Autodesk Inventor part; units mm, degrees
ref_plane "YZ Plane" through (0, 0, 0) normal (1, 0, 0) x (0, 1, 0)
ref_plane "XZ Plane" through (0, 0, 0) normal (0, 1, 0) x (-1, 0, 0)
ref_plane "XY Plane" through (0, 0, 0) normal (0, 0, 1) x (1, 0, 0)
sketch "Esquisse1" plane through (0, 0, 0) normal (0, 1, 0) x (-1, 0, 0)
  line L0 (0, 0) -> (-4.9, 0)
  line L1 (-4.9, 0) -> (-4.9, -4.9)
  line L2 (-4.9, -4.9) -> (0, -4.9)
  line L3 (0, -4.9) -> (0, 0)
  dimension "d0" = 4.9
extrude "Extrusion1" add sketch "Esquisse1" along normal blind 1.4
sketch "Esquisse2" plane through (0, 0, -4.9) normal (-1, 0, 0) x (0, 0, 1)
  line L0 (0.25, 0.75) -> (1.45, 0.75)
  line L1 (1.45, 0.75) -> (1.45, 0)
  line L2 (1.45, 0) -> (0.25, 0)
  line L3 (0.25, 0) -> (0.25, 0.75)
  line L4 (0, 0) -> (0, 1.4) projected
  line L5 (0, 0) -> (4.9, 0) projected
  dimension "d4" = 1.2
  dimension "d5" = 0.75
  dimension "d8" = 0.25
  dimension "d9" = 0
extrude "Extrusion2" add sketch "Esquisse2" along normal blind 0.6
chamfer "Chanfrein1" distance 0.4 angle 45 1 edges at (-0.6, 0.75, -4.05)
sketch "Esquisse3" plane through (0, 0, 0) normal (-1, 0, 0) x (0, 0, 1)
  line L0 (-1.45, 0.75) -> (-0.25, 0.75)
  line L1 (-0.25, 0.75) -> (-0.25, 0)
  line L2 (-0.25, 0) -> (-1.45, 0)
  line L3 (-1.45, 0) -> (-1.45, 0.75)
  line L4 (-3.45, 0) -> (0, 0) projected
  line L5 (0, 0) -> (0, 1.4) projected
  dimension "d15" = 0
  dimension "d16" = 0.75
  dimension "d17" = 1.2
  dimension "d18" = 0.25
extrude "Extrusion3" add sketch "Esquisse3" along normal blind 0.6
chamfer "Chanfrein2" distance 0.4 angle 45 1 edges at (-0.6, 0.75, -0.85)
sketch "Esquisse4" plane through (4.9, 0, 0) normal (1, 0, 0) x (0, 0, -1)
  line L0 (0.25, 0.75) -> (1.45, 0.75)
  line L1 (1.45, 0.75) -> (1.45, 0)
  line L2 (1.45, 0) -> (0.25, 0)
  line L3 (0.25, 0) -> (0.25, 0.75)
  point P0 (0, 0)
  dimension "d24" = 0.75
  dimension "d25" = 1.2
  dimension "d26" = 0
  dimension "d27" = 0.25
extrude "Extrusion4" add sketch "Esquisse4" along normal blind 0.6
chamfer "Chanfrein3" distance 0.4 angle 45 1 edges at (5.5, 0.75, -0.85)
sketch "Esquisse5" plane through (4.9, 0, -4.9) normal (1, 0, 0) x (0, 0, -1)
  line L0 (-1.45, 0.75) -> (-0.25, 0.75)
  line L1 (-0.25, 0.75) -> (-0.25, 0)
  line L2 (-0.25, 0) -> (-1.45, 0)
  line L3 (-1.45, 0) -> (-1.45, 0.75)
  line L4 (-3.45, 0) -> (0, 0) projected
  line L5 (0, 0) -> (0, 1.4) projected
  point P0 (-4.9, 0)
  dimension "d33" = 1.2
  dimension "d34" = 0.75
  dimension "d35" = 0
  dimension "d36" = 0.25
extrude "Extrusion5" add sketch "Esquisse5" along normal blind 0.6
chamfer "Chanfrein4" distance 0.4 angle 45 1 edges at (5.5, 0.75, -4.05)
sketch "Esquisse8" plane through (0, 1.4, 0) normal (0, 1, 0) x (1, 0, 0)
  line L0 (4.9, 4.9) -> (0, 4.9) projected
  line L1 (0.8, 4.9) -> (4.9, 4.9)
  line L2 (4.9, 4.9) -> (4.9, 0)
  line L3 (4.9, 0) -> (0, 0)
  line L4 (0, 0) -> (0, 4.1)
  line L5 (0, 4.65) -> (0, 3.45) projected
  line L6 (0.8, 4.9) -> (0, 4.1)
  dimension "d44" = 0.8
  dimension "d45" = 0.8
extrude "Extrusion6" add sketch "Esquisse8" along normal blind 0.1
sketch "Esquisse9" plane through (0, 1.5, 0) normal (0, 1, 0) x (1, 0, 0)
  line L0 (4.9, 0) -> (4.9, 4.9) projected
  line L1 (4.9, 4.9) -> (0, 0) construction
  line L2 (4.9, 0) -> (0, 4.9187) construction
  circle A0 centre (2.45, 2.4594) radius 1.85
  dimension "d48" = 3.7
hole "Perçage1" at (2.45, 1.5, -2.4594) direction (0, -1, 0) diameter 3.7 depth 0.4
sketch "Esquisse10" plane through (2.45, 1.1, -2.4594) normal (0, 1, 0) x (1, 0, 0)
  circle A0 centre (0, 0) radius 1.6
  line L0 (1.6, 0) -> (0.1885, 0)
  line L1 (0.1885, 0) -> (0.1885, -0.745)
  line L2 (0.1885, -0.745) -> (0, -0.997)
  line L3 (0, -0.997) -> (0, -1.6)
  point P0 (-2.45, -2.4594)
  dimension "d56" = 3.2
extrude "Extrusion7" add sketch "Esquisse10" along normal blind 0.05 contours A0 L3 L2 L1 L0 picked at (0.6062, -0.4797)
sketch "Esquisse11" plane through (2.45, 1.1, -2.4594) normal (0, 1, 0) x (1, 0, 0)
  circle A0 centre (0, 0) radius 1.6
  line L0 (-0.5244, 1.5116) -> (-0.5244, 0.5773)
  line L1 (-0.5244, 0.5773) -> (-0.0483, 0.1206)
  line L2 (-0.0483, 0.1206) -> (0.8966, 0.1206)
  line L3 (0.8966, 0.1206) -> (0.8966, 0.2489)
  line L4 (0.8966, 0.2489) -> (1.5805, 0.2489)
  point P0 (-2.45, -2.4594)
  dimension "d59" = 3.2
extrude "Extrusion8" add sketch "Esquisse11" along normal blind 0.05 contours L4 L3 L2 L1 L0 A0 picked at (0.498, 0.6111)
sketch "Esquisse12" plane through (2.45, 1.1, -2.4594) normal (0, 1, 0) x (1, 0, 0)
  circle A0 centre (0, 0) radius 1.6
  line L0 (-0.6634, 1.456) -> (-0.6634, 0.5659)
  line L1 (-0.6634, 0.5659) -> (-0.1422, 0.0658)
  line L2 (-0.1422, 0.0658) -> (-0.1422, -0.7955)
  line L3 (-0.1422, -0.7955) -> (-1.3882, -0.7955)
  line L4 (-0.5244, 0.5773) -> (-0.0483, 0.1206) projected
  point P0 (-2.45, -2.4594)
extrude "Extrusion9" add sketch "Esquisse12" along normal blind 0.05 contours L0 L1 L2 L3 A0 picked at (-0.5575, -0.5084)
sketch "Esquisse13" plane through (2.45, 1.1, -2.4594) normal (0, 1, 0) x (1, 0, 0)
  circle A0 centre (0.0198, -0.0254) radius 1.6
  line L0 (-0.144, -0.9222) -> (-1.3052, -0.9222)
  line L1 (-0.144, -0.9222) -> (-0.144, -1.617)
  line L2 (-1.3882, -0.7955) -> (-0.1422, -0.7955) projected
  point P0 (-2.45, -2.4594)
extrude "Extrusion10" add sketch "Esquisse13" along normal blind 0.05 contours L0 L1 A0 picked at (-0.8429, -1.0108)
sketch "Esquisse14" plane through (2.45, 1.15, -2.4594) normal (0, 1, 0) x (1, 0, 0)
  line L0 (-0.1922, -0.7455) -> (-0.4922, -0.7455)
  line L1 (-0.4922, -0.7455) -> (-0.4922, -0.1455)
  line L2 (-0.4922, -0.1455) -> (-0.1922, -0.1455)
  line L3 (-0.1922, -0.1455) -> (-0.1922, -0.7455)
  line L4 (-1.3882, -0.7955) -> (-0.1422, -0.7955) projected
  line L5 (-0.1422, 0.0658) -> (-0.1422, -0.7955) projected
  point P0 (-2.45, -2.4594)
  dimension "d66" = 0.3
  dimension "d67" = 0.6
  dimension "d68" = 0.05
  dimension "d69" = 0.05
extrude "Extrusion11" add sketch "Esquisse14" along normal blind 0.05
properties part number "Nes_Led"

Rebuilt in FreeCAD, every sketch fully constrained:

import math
import FreeCAD as App
import Part
import Sketcher

V = App.Vector
Q = App.Units.Quantity


def edges_at(feature, points):
    """Names of the edges that pass closest to the given points."""
    edges = feature.Shape.Edges
    near = lambda p: min(range(len(edges)), key=lambda i: edges[i].distToShape(Part.Vertex(*p))[0])
    return sorted({f"Edge{near(p) + 1}" for p in points})


def add_polygon(sketch, points):
    """Adds a closed chain of lines whose ends are joined by coincident constraints."""
    first, n = sketch.GeometryCount, len(points)
    for a, b in zip(points, points[1:] + points[:1]):
        sketch.addGeometry(Part.LineSegment(App.Vector(*a, 0), App.Vector(*b, 0)), False)
    for i in range(n):
        sketch.addConstraint(Sketcher.Constraint("Coincident", first + i, 2, first + (i + 1) % n, 1))

doc = App.newDocument("Part")
params = doc.addObject("Spreadsheet::Sheet", "Params")
for row, (alias, value) in enumerate([
    ("sketch1_width", "4.9 mm"),
    ("pad1_length", "1.4 mm"),
    ("sketch2_height", "1.2 mm"),
    ("sketch2_width", "0.75 mm"),
    ("pad2_length", "0.6 mm"),
    ("chamfer_size", "0.4 mm"),
    ("sketch3_height", "1.2 mm"),
    ("sketch3_width", "0.75 mm"),
    ("pad3_length", "0.6 mm"),
    ("chamfer2_size", "0.4 mm"),
    ("sketch4_height", "1.2 mm"),
    ("sketch4_width", "0.75 mm"),
    ("pad4_length", "0.6 mm"),
    ("chamfer3_size", "0.4 mm"),
    ("sketch5_height", "1.2 mm"),
    ("sketch5_width", "0.75 mm"),
    ("pad5_length", "0.6 mm"),
    ("chamfer4_size", "0.4 mm"),
    ("sketch6_width", "4.1 mm"),
    ("pad6_length", "0.1 mm"),
    ("sketch7_diameter", "3.7 mm"),
    ("hole_diameter", "3.7 mm"),
    ("hole_depth", "0.4 mm"),
    ("sketch8_radius", "1.6 mm"),
    ("pad7_length", "0.05 mm"),
    ("sketch9_radius", "1.6 mm"),
    ("pad8_length", "0.05 mm"),
    ("sketch10_radius", "1.6 mm"),
    ("sketch10_height", "0.89 mm"),
    ("pad9_length", "0.05 mm"),
    ("sketch11_radius", "1.6 mm"),
    ("pad10_length", "0.05 mm"),
    ("sketch12_width", "0.3 mm"),
    ("sketch12_height", "0.6 mm"),
    ("pad11_length", "0.05 mm"),
], start=1):
    params.set(f"A{row}", alias)
    params.set(f"B{row}", "=" + value)
    params.setAlias(f"B{row}", alias)

body = doc.addObject("PartDesign::Body", "Body")

sketch1 = body.newObject("Sketcher::SketchObject", "Sketch")
sketch1.AttachmentSupport = (doc.getObject("XZ_Plane"), [""])
sketch1.MapMode = "FlatFace"
add_polygon(sketch1, [(0, -4.9), (0, 0), (4.9, 0), (4.9, -4.9)])
sketch1.addConstraint(Sketcher.Constraint("Vertical", 0))
sketch1.addConstraint(Sketcher.Constraint("Horizontal", 1))
sketch1.addConstraint(Sketcher.Constraint("Vertical", 2))
sketch1.addConstraint(Sketcher.Constraint("Horizontal", 3))
sketch1.addConstraint(Sketcher.Constraint("Coincident", 0, 2, -1, 1))
sketch1.addConstraint(Sketcher.Constraint("Equal", 3, 0))
sketch1.addConstraint(Sketcher.Constraint("DistanceX", 1, 1, 1, 2, Q("4.9 mm")))
sketch1.setExpression("Constraints[10]", "Params.sketch1_width")
pad1 = body.newObject("PartDesign::Pad", "Pad")
pad1.Profile = sketch1
pad1.setExpression("Length", "Params.pad1_length")
pad1.Reversed = True

sketch2 = body.newObject("Sketcher::SketchObject", "Sketch001")
sketch2.AttachmentSupport = (doc.getObject("YZ_Plane"), [""])
sketch2.MapMode = "FlatFace"
add_polygon(sketch2, [(0.8, -3.5), (0.8, -4.7), (0, -4.7), (0, -3.5)])
sketch2.addConstraint(Sketcher.Constraint("Vertical", 0))
sketch2.addConstraint(Sketcher.Constraint("Horizontal", 1))
sketch2.addConstraint(Sketcher.Constraint("Vertical", 2))
sketch2.addConstraint(Sketcher.Constraint("Horizontal", 3))
sketch2.addConstraint(Sketcher.Constraint("PointOnObject", 1, 2, -2))
sketch2.addConstraint(Sketcher.Constraint("DistanceY", 0, 2, 0, 1, Q("1.2 mm")))
sketch2.addConstraint(Sketcher.Constraint("DistanceX", 1, 2, 1, 1, Q("0.75 mm")))
sketch2.addConstraint(Sketcher.Constraint("DistanceY", 0, 2, -1, 1, Q("4.65 mm")))
sketch2.setExpression("Constraints[9]", "Params.sketch2_height")
sketch2.setExpression("Constraints[10]", "Params.sketch2_width")
pad2 = body.newObject("PartDesign::Pad", "Pad001")
pad2.Profile = sketch2
pad2.setExpression("Length", "Params.pad2_length")
pad2.Reversed = True
doc.recompute()

chamfer = body.newObject("PartDesign::Chamfer", "Chamfer")
chamfer.Base = (pad2, edges_at(pad2, [(-0.6, 0.75, -4.05)]))
chamfer.setExpression("Size", "Params.chamfer_size")

sketch3 = body.newObject("Sketcher::SketchObject", "Sketch002")
sketch3.AttachmentSupport = (doc.getObject("YZ_Plane"), [""])
sketch3.MapMode = "FlatFace"
add_polygon(sketch3, [(0.8, -0.2), (0.8, -1.4), (0, -1.4), (0, -0.2)])
sketch3.addConstraint(Sketcher.Constraint("Vertical", 0))
sketch3.addConstraint(Sketcher.Constraint("Horizontal", 1))
sketch3.addConstraint(Sketcher.Constraint("Vertical", 2))
sketch3.addConstraint(Sketcher.Constraint("Horizontal", 3))
sketch3.addConstraint(Sketcher.Constraint("PointOnObject", 1, 2, -2))
sketch3.addConstraint(Sketcher.Constraint("DistanceY", 0, 2, 0, 1, Q("1.2 mm")))
sketch3.addConstraint(Sketcher.Constraint("DistanceX", 1, 2, 1, 1, Q("0.75 mm")))
sketch3.addConstraint(Sketcher.Constraint("DistanceY", 2, 2, -1, 1, Q("0.25 mm")))
sketch3.setExpression("Constraints[9]", "Params.sketch3_height")
sketch3.setExpression("Constraints[10]", "Params.sketch3_width")
pad3 = body.newObject("PartDesign::Pad", "Pad002")
pad3.Profile = sketch3
pad3.setExpression("Length", "Params.pad3_length")
pad3.Reversed = True
doc.recompute()

chamfer2 = body.newObject("PartDesign::Chamfer", "Chamfer001")
chamfer2.Base = (pad3, edges_at(pad3, [(-0.6, 0.75, -0.85)]))
chamfer2.setExpression("Size", "Params.chamfer2_size")

sketch4 = body.newObject("Sketcher::SketchObject", "Sketch003")
sketch4.AttachmentSupport = (doc.getObject("YZ_Plane"), [""])
sketch4.MapMode = "FlatFace"
sketch4.AttachmentOffset = App.Placement(V(0, 0, 4.9), App.Rotation())
add_polygon(sketch4, [(0.8, -1.4), (0.8, -0.2), (0, -0.2), (0, -1.4)])
sketch4.addConstraint(Sketcher.Constraint("Vertical", 0))
sketch4.addConstraint(Sketcher.Constraint("Horizontal", 1))
sketch4.addConstraint(Sketcher.Constraint("Vertical", 2))
sketch4.addConstraint(Sketcher.Constraint("Horizontal", 3))
sketch4.addConstraint(Sketcher.Constraint("PointOnObject", 1, 2, -2))
sketch4.addConstraint(Sketcher.Constraint("DistanceY", 0, 1, 0, 2, Q("1.2 mm")))
sketch4.addConstraint(Sketcher.Constraint("DistanceX", 1, 2, 1, 1, Q("0.75 mm")))
sketch4.addConstraint(Sketcher.Constraint("DistanceY", 0, 2, -1, 1, Q("0.25 mm")))
sketch4.setExpression("Constraints[9]", "Params.sketch4_height")
sketch4.setExpression("Constraints[10]", "Params.sketch4_width")
pad4 = body.newObject("PartDesign::Pad", "Pad003")
pad4.Profile = sketch4
pad4.setExpression("Length", "Params.pad4_length")
doc.recompute()

chamfer3 = body.newObject("PartDesign::Chamfer", "Chamfer002")
chamfer3.Base = (pad4, edges_at(pad4, [(5.5, 0.75, -0.85)]))
chamfer3.setExpression("Size", "Params.chamfer3_size")

sketch5 = body.newObject("Sketcher::SketchObject", "Sketch004")
sketch5.AttachmentSupport = (doc.getObject("YZ_Plane"), [""])
sketch5.MapMode = "FlatFace"
sketch5.AttachmentOffset = App.Placement(V(0, 0, 4.9), App.Rotation())
add_polygon(sketch5, [(0.8, -4.7), (0.8, -3.5), (0, -3.5), (0, -4.7)])
sketch5.addConstraint(Sketcher.Constraint("Vertical", 0))
sketch5.addConstraint(Sketcher.Constraint("Horizontal", 1))
sketch5.addConstraint(Sketcher.Constraint("Vertical", 2))
sketch5.addConstraint(Sketcher.Constraint("Horizontal", 3))
sketch5.addConstraint(Sketcher.Constraint("PointOnObject", 1, 2, -2))
sketch5.addConstraint(Sketcher.Constraint("DistanceY", 0, 1, 0, 2, Q("1.2 mm")))
sketch5.addConstraint(Sketcher.Constraint("DistanceX", 1, 2, 1, 1, Q("0.75 mm")))
sketch5.addConstraint(Sketcher.Constraint("DistanceY", 0, 2, -1, 1, Q("3.45 mm")))
sketch5.setExpression("Constraints[9]", "Params.sketch5_height")
sketch5.setExpression("Constraints[10]", "Params.sketch5_width")
pad5 = body.newObject("PartDesign::Pad", "Pad004")
pad5.Profile = sketch5
pad5.setExpression("Length", "Params.pad5_length")
doc.recompute()

chamfer4 = body.newObject("PartDesign::Chamfer", "Chamfer003")
chamfer4.Base = (pad5, edges_at(pad5, [(5.5, 0.75, -4.05)]))
chamfer4.setExpression("Size", "Params.chamfer4_size")

sketch6 = body.newObject("Sketcher::SketchObject", "Sketch005")
sketch6.AttachmentSupport = (doc.getObject("XZ_Plane"), [""])
sketch6.MapMode = "FlatFace"
sketch6.AttachmentOffset = App.Placement(V(0, 0, -1.4), App.Rotation())
add_polygon(sketch6, [(4.9, 0), (4.9, -4.9), (0.8, -4.9), (0, -4.1), (0, 0)])
sketch6.addConstraint(Sketcher.Constraint("Vertical", 0))
sketch6.addConstraint(Sketcher.Constraint("Horizontal", 1))
sketch6.addConstraint(Sketcher.Constraint("Vertical", 3))
sketch6.addConstraint(Sketcher.Constraint("Horizontal", 4))
sketch6.addConstraint(Sketcher.Constraint("Coincident", 3, 2, -1, 1))
sketch6.addConstraint(Sketcher.Constraint("Equal", 4, 0))
sketch6.addConstraint(Sketcher.Constraint("Equal", 1, 3))
sketch6.addConstraint(Sketcher.Constraint("DistanceX", -1, 1, 1, 2, Q("0.8 mm")))
sketch6.addConstraint(Sketcher.Constraint("DistanceX", 1, 2, 1, 1, Q("4.1 mm")))
sketch6.setExpression("Constraints[13]", "Params.sketch6_width")
pad6 = body.newObject("PartDesign::Pad", "Pad005")
pad6.Profile = sketch6
pad6.setExpression("Length", "Params.pad6_length")
pad6.Reversed = True

sketch7 = body.newObject("Sketcher::SketchObject", "Sketch006")
sketch7.AttachmentSupport = (doc.getObject("XZ_Plane"), [""])
sketch7.MapMode = "FlatFace"
sketch7.AttachmentOffset = App.Placement(V(0, 0, -1.5), App.Rotation())
sketch7.addGeometry(Part.Circle(V(2.5, -2.5, 0), V(0, 0, 1), 1.9), False)
sketch7.addConstraint(Sketcher.Constraint("Diameter", 0, Q("3.7 mm")))
sketch7.addConstraint(Sketcher.Constraint("DistanceX", -1, 1, 0, 3, Q("2.45 mm")))
sketch7.addConstraint(Sketcher.Constraint("DistanceY", 0, 3, -1, 1, Q("2.4594 mm")))
sketch7.setExpression("Constraints[0]", "Params.sketch7_diameter")
doc.recompute()
hole = body.newObject("PartDesign::Hole", "Hole")
hole.Profile = sketch7
hole.ThreadType = "None"
hole.setExpression("Diameter", "Params.hole_diameter")
hole.DepthType = "Dimension"
hole.setExpression("Depth", "Params.hole_depth")
hole.DrillPoint = "Flat"
hole.Reversed = True

sketch8 = body.newObject("Sketcher::SketchObject", "Sketch007")
sketch8.AttachmentSupport = (doc.getObject("XZ_Plane"), [""])
sketch8.MapMode = "FlatFace"
sketch8.AttachmentOffset = App.Placement(V(0, 0, -1.1), App.Rotation())
sketch8.addGeometry(Part.ArcOfCircle(Part.Circle(V(2.45, -2.46, 0), V(0, 0, 1), 1.6), math.radians(0), math.radians(90)), False)
sketch8.addGeometry(Part.LineSegment(V(4.05, -2.46, 0), V(2.64, -2.46, 0)), False)
sketch8.addGeometry(Part.LineSegment(V(2.64, -2.46, 0), V(2.64, -1.71, 0)), False)
sketch8.addGeometry(Part.LineSegment(V(2.64, -1.71, 0), V(2.45, -1.46, 0)), False)
sketch8.addGeometry(Part.LineSegment(V(2.45, -1.46, 0), V(2.45, -0.86, 0)), False)
sketch8.addConstraint(Sketcher.Constraint("Coincident", 0, 1, 1, 1))
sketch8.addConstraint(Sketcher.Constraint("Coincident", 1, 2, 2, 1))
sketch8.addConstraint(Sketcher.Constraint("Coincident", 2, 2, 3, 1))
sketch8.addConstraint(Sketcher.Constraint("Coincident", 3, 2, 4, 1))
sketch8.addConstraint(Sketcher.Constraint("Coincident", 4, 2, 0, 2))
sketch8.addConstraint(Sketcher.Constraint("Horizontal", 1))
sketch8.addConstraint(Sketcher.Constraint("Vertical", 2))
sketch8.addConstraint(Sketcher.Constraint("Vertical", 4))
sketch8.addConstraint(Sketcher.Constraint("Vertical", 0, 3, 3, 2))
sketch8.addConstraint(Sketcher.Constraint("Radius", 0, Q("1.6 mm")))
sketch8.addConstraint(Sketcher.Constraint("DistanceY", 1, 2, 4, 2, Q("1.6 mm")))
sketch8.addConstraint(Sketcher.Constraint("DistanceY", 2, 1, 2, 2, Q("0.745 mm")))
sketch8.addConstraint(Sketcher.Constraint("DistanceY", 4, 1, 4, 2, Q("0.603 mm")))
sketch8.addConstraint(Sketcher.Constraint("DistanceX", -1, 1, 0, 3, Q("2.45 mm")))
sketch8.addConstraint(Sketcher.Constraint("DistanceX", 1, 2, 1, 1, Q("1.4115 mm")))
sketch8.addConstraint(Sketcher.Constraint("DistanceY", 0, 3, -1, 1, Q("2.4594 mm")))
sketch8.setExpression("Constraints[9]", "Params.sketch8_radius")
pad7 = body.newObject("PartDesign::Pad", "Pad006")
pad7.Profile = sketch8
pad7.setExpression("Length", "Params.pad7_length")
pad7.Reversed = True

sketch9 = body.newObject("Sketcher::SketchObject", "Sketch008")
sketch9.AttachmentSupport = (doc.getObject("XZ_Plane"), [""])
sketch9.MapMode = "FlatFace"
sketch9.AttachmentOffset = App.Placement(V(0, 0, -1.1), App.Rotation())
sketch9.addGeometry(Part.LineSegment(V(3.35, -2.71, 0), V(4.03, -2.71, 0)), False)
sketch9.addGeometry(Part.ArcOfCircle(Part.Circle(V(2.45, -2.46, 0), V(0, 0, 1), 1.6), math.radians(-109), math.radians(-9)), False)
sketch9.addGeometry(Part.LineSegment(V(1.93, -3.97, 0), V(1.93, -3.04, 0)), False)
sketch9.addGeometry(Part.LineSegment(V(1.93, -3.04, 0), V(2.4, -2.58, 0)), False)
sketch9.addGeometry(Part.LineSegment(V(2.4, -2.58, 0), V(3.35, -2.58, 0)), False)
sketch9.addGeometry(Part.LineSegment(V(3.35, -2.58, 0), V(3.35, -2.71, 0)), False)
sketch9.addConstraint(Sketcher.Constraint("Coincident", 0, 2, 1, 2))
sketch9.addConstraint(Sketcher.Constraint("Coincident", 1, 1, 2, 1))
sketch9.addConstraint(Sketcher.Constraint("Coincident", 2, 2, 3, 1))
sketch9.addConstraint(Sketcher.Constraint("Coincident", 3, 2, 4, 1))
sketch9.addConstraint(Sketcher.Constraint("Coincident", 4, 2, 5, 1))
sketch9.addConstraint(Sketcher.Constraint("Coincident", 5, 2, 0, 1))
sketch9.addConstraint(Sketcher.Constraint("Horizontal", 0))
sketch9.addConstraint(Sketcher.Constraint("Vertical", 2))
sketch9.addConstraint(Sketcher.Constraint("Horizontal", 4))
sketch9.addConstraint(Sketcher.Constraint("Vertical", 5))
sketch9.addConstraint(Sketcher.Constraint("Radius", 1, Q("1.6 mm")))
sketch9.addConstraint(Sketcher.Constraint("DistanceX", 0, 1, 0, 2, Q("0.684 mm")))
sketch9.addConstraint(Sketcher.Constraint("DistanceX", 4, 1, 4, 2, Q("0.945 mm")))
sketch9.addConstraint(Sketcher.Constraint("DistanceX", -1, 1, 1, 3, Q("2.45 mm")))
sketch9.addConstraint(Sketcher.Constraint("DistanceY", 3, 2, -1, 1, Q("2.58 mm")))
sketch9.addConstraint(Sketcher.Constraint("DistanceY", 2, 1, 2, 2, Q("0.9343 mm")))
sketch9.addConstraint(Sketcher.Constraint("DistanceY", 5, 2, 5, 1, Q("0.1283 mm")))
sketch9.addConstraint(Sketcher.Constraint("DistanceY", 1, 1, -1, 1, Q("3.971 mm")))
sketch9.addConstraint(Sketcher.Constraint("DistanceY", 0, 2, 1, 3, Q("0.249 mm")))
sketch9.setExpression("Constraints[10]", "Params.sketch9_radius")
pad8 = body.newObject("PartDesign::Pad", "Pad007")
pad8.Profile = sketch9
pad8.setExpression("Length", "Params.pad8_length")
pad8.Reversed = True

sketch10 = body.newObject("Sketcher::SketchObject", "Sketch009")
sketch10.AttachmentSupport = (doc.getObject("XZ_Plane"), [""])
sketch10.MapMode = "FlatFace"
sketch10.AttachmentOffset = App.Placement(V(0, 0, -1.1), App.Rotation())
sketch10.addGeometry(Part.LineSegment(V(1.8, -3, 0), V(1.8, -3.9, 0)), False)
sketch10.addGeometry(Part.ArcOfCircle(Part.Circle(V(2.5, -2.5, 0), V(0, 0, 1), 1.6), math.radians(150), math.radians(246)), False)
sketch10.addGeometry(Part.LineSegment(V(1.1, -1.7, 0), V(2.3, -1.7, 0)), False)
sketch10.addGeometry(Part.LineSegment(V(2.3, -1.7, 0), V(2.3, -2.5, 0)), False)
sketch10.addGeometry(Part.LineSegment(V(2.3, -2.5, 0), V(1.8, -3, 0)), False)
sketch10.addConstraint(Sketcher.Constraint("Coincident", 0, 2, 1, 2))
sketch10.addConstraint(Sketcher.Constraint("Coincident", 1, 1, 2, 1))
sketch10.addConstraint(Sketcher.Constraint("Coincident", 2, 2, 3, 1))
sketch10.addConstraint(Sketcher.Constraint("Coincident", 3, 2, 4, 1))
sketch10.addConstraint(Sketcher.Constraint("Coincident", 4, 2, 0, 1))
sketch10.addConstraint(Sketcher.Constraint("Vertical", 0))
sketch10.addConstraint(Sketcher.Constraint("Horizontal", 2))
sketch10.addConstraint(Sketcher.Constraint("Vertical", 3))
sketch10.addConstraint(Sketcher.Constraint("Radius", 1, Q("1.6 mm")))
sketch10.addConstraint(Sketcher.Constraint("DistanceY", 0, 2, 0, 1, Q("0.89 mm")))
sketch10.addConstraint(Sketcher.Constraint("DistanceY", 4, 2, 3, 2, Q("0.5 mm")))
sketch10.addConstraint(Sketcher.Constraint("DistanceX", 2, 1, 2, 2, Q("1.246 mm")))
sketch10.addConstraint(Sketcher.Constraint("DistanceX", -1, 1, 1, 3, Q("2.45 mm")))
sketch10.addConstraint(Sketcher.Constraint("DistanceY", 3, 2, 3, 1, Q("0.8613 mm")))
sketch10.addConstraint(Sketcher.Constraint("DistanceY", 1, 1, -1, 1, Q("1.664 mm")))
sketch10.addConstraint(Sketcher.Constraint("DistanceY", 0, 2, 1, 3, Q("1.456 mm")))
sketch10.setExpression("Constraints[8]", "Params.sketch10_radius")
sketch10.setExpression("Constraints[9]", "Params.sketch10_height")
pad9 = body.newObject("PartDesign::Pad", "Pad008")
pad9.Profile = sketch10
pad9.setExpression("Length", "Params.pad9_length")
pad9.Reversed = True

sketch11 = body.newObject("Sketcher::SketchObject", "Sketch010")
sketch11.AttachmentSupport = (doc.getObject("XZ_Plane"), [""])
sketch11.MapMode = "FlatFace"
sketch11.AttachmentOffset = App.Placement(V(0, 0, -1.1), App.Rotation())
sketch11.addGeometry(Part.LineSegment(V(2.3, -1.5, 0), V(1.1, -1.5, 0)), False)
sketch11.addGeometry(Part.ArcOfCircle(Part.Circle(V(2.5, -2.4, 0), V(0, 0, 1), 1.6), math.radians(96), math.radians(146)), False)
sketch11.addGeometry(Part.LineSegment(V(2.3, -0.8, 0), V(2.3, -1.5, 0)), False)
sketch11.addConstraint(Sketcher.Constraint("Coincident", 0, 2, 1, 2))
sketch11.addConstraint(Sketcher.Constraint("Coincident", 1, 1, 2, 1))
sketch11.addConstraint(Sketcher.Constraint("Coincident", 2, 2, 0, 1))
sketch11.addConstraint(Sketcher.Constraint("Horizontal", 0))
sketch11.addConstraint(Sketcher.Constraint("Vertical", 2))
sketch11.addConstraint(Sketcher.Constraint("Radius", 1, Q("1.6 mm")))
sketch11.addConstraint(Sketcher.Constraint("DistanceX", 0, 2, 0, 1, Q("1.1612 mm")))
sketch11.addConstraint(Sketcher.Constraint("DistanceY", 2, 2, 2, 1, Q("0.6948 mm")))
sketch11.addConstraint(Sketcher.Constraint("DistanceY", 1, 3, -1, 1, Q("2.434 mm")))
sketch11.addConstraint(Sketcher.Constraint("DistanceX", -1, 1, 1, 1, Q("2.306 mm")))
sketch11.setExpression("Constraints[5]", "Params.sketch11_radius")
pad10 = body.newObject("PartDesign::Pad", "Pad009")
pad10.Profile = sketch11
pad10.setExpression("Length", "Params.pad10_length")
pad10.Reversed = True

sketch12 = body.newObject("Sketcher::SketchObject", "Sketch011")
sketch12.AttachmentSupport = (doc.getObject("XZ_Plane"), [""])
sketch12.MapMode = "FlatFace"
sketch12.AttachmentOffset = App.Placement(V(0, 0, -1.15), App.Rotation())
add_polygon(sketch12, [(1.96, -1.71), (2.26, -1.71), (2.26, -2.31), (1.96, -2.31)])
sketch12.addConstraint(Sketcher.Constraint("Horizontal", 0))
sketch12.addConstraint(Sketcher.Constraint("Vertical", 1))
sketch12.addConstraint(Sketcher.Constraint("Horizontal", 2))
sketch12.addConstraint(Sketcher.Constraint("Vertical", 3))
sketch12.addConstraint(Sketcher.Constraint("DistanceX", 0, 1, 0, 2, Q("0.3 mm")))
sketch12.addConstraint(Sketcher.Constraint("DistanceY", 1, 2, 1, 1, Q("0.6 mm")))
sketch12.addConstraint(Sketcher.Constraint("DistanceY", 0, 2, -1, 1, Q("1.714 mm")))
sketch12.addConstraint(Sketcher.Constraint("DistanceX", -1, 1, 0, 2, Q("2.2578 mm")))
sketch12.setExpression("Constraints[8]", "Params.sketch12_width")
sketch12.setExpression("Constraints[9]", "Params.sketch12_height")
pad11 = body.newObject("PartDesign::Pad", "Pad010")
pad11.Profile = sketch12
pad11.setExpression("Length", "Params.pad11_length")
pad11.Reversed = True

doc.recompute()
